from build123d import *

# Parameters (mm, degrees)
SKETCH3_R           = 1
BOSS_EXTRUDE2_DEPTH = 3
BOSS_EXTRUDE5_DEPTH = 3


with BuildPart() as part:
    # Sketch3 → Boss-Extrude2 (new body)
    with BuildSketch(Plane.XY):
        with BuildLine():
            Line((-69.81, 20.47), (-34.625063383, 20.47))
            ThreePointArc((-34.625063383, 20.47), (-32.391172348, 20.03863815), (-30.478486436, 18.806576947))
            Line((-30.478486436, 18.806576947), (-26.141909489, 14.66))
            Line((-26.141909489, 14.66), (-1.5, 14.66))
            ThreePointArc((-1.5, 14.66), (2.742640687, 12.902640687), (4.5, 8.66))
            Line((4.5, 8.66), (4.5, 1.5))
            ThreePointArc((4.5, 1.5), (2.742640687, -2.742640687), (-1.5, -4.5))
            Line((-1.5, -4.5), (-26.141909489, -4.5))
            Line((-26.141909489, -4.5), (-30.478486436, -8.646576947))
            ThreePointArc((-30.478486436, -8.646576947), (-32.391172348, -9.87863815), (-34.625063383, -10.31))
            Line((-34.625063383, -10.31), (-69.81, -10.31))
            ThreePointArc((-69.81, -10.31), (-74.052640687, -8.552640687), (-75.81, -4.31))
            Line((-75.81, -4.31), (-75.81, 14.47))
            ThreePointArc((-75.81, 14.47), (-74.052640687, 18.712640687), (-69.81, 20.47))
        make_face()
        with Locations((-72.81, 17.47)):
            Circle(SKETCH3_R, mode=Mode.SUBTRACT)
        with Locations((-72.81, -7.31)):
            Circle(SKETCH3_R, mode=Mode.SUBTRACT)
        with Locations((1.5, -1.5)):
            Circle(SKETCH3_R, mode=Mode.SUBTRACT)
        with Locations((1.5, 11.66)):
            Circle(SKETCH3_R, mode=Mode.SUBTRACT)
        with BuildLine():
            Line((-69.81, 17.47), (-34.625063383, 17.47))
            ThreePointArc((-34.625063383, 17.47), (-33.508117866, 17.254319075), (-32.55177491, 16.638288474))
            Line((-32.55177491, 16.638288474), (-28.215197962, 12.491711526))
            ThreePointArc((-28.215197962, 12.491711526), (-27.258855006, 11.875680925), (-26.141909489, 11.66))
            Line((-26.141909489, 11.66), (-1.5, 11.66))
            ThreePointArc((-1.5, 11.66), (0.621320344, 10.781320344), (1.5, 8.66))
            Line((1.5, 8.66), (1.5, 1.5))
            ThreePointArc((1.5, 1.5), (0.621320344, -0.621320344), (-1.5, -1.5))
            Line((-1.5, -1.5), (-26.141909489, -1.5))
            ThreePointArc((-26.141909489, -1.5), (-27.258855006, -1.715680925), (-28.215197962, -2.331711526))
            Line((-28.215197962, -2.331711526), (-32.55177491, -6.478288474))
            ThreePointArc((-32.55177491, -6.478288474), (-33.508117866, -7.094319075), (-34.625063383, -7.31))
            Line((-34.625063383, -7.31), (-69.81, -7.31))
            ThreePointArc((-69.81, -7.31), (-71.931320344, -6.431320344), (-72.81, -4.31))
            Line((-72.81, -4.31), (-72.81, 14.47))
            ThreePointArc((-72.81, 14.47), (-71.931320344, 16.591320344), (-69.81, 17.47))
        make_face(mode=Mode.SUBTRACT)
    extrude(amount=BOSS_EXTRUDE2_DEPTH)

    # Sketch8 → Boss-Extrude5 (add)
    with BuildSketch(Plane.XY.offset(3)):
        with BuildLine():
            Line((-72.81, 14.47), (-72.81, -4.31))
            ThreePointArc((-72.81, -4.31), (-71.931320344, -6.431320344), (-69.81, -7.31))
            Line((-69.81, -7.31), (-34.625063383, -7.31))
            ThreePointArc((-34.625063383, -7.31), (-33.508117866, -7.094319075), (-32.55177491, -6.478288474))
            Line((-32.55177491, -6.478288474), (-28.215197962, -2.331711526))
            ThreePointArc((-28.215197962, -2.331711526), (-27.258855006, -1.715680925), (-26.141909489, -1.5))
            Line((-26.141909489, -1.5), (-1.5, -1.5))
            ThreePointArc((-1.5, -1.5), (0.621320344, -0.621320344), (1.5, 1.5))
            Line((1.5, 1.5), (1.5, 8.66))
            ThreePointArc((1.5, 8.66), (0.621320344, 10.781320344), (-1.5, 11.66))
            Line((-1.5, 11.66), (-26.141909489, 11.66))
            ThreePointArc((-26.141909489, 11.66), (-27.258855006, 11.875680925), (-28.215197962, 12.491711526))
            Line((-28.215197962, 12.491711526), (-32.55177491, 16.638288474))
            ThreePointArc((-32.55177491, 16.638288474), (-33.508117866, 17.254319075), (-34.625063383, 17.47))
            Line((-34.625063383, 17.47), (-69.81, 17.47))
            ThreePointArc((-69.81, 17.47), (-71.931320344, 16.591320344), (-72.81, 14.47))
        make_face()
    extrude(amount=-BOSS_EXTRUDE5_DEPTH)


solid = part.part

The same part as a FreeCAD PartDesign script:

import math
import FreeCAD as App
import Part
import Sketcher

V = App.Vector
Q = App.Units.Quantity

doc = App.newDocument("Part")
body = doc.addObject("PartDesign::Body", "Body")

# Sketch on XY plane
sketch1 = doc.addObject("Sketcher::SketchObject", "Sketch")
body.addObject(sketch1)
sketch1.AttachmentSupport = (doc.XY_Plane, [""])
sketch1.MapMode = "FlatFace"
sketch1.addGeometry(Part.LineSegment(V(-34.6, 20.5, 0), V(-69.8, 20.5, 0)), False)
sketch1.addGeometry(Part.ArcOfCircle(Part.Circle(V(-69.8, 14.5, 0), V(0, 0, 1), 6), math.radians(90), math.radians(180)), False)
sketch1.addGeometry(Part.LineSegment(V(-75.8, 14.5, 0), V(-75.8, -4.3, 0)), False)
sketch1.addGeometry(Part.ArcOfCircle(Part.Circle(V(-69.8, -4.3, 0), V(0, 0, 1), 6), math.radians(180), math.radians(270)), False)
sketch1.addGeometry(Part.LineSegment(V(-69.8, -10.3, 0), V(-34.6, -10.3, 0)), False)
sketch1.addGeometry(Part.ArcOfCircle(Part.Circle(V(-34.6, -4.3, 0), V(0, 0, 1), 6), math.radians(-90), math.radians(-46)), False)
sketch1.addGeometry(Part.LineSegment(V(-30.5, -8.6, 0), V(-26.1, -4.5, 0)), False)
sketch1.addGeometry(Part.LineSegment(V(-26.1, -4.5, 0), V(-1.5, -4.5, 0)), False)
sketch1.addGeometry(Part.ArcOfCircle(Part.Circle(V(-1.5, 1.5, 0), V(0, 0, 1), 6), math.radians(-90), math.radians(0)), False)
sketch1.addGeometry(Part.LineSegment(V(4.5, 1.5, 0), V(4.5, 8.7, 0)), False)
sketch1.addGeometry(Part.ArcOfCircle(Part.Circle(V(-1.5, 8.7, 0), V(0, 0, 1), 6), math.radians(0), math.radians(90)), False)
sketch1.addGeometry(Part.LineSegment(V(-1.5, 14.7, 0), V(-26.1, 14.7, 0)), False)
sketch1.addGeometry(Part.LineSegment(V(-26.1, 14.7, 0), V(-30.5, 18.8, 0)), False)
sketch1.addGeometry(Part.ArcOfCircle(Part.Circle(V(-34.6, 14.5, 0), V(0, 0, 1), 6), math.radians(46), math.radians(90)), False)
sketch1.addGeometry(Part.Circle(V(1.5, -1.5, 0), V(0, 0, 1), 1), False)
sketch1.addGeometry(Part.Circle(V(-72.8, -7.3, 0), V(0, 0, 1), 1), False)
sketch1.addGeometry(Part.Circle(V(1.5, 11.7, 0), V(0, 0, 1), 1), False)
sketch1.addGeometry(Part.LineSegment(V(-69.8, 17.5, 0), V(-34.6, 17.5, 0)), False)
sketch1.addGeometry(Part.ArcOfCircle(Part.Circle(V(-34.6, 14.5, 0), V(0, 0, 1), 3), math.radians(46), math.radians(90)), False)
sketch1.addGeometry(Part.LineSegment(V(-32.6, 16.6, 0), V(-28.2, 12.5, 0)), False)
sketch1.addGeometry(Part.ArcOfCircle(Part.Circle(V(-26.1, 14.7, 0), V(0, 0, 1), 3), math.radians(-134), math.radians(-90)), False)
sketch1.addGeometry(Part.LineSegment(V(-26.1, 11.7, 0), V(-1.5, 11.7, 0)), False)
sketch1.addGeometry(Part.ArcOfCircle(Part.Circle(V(-1.5, 8.7, 0), V(0, 0, 1), 3), math.radians(0), math.radians(90)), False)
sketch1.addGeometry(Part.LineSegment(V(1.5, 8.7, 0), V(1.5, 1.5, 0)), False)
sketch1.addGeometry(Part.ArcOfCircle(Part.Circle(V(-1.5, 1.5, 0), V(0, 0, 1), 3), math.radians(-90), math.radians(0)), False)
sketch1.addGeometry(Part.LineSegment(V(-1.5, -1.5, 0), V(-26.1, -1.5, 0)), False)
sketch1.addGeometry(Part.ArcOfCircle(Part.Circle(V(-26.1, -4.5, 0), V(0, 0, 1), 3), math.radians(90), math.radians(134)), False)
sketch1.addGeometry(Part.LineSegment(V(-28.2, -2.3, 0), V(-32.6, -6.5, 0)), False)
sketch1.addGeometry(Part.ArcOfCircle(Part.Circle(V(-34.6, -4.3, 0), V(0, 0, 1), 3), math.radians(-90), math.radians(-46)), False)
sketch1.addGeometry(Part.LineSegment(V(-34.6, -7.3, 0), V(-69.8, -7.3, 0)), False)
sketch1.addGeometry(Part.ArcOfCircle(Part.Circle(V(-69.8, -4.3, 0), V(0, 0, 1), 3), math.radians(180), math.radians(270)), False)
sketch1.addGeometry(Part.LineSegment(V(-72.8, -4.3, 0), V(-72.8, 14.5, 0)), False)
sketch1.addGeometry(Part.ArcOfCircle(Part.Circle(V(-69.8, 14.5, 0), V(0, 0, 1), 3), math.radians(90), math.radians(180)), False)
sketch1.addGeometry(Part.Circle(V(-72.8, 17.5, 0), V(0, 0, 1), 1), False)
sketch1.addConstraint(Sketcher.Constraint("Tangent", 0, 2, 1, 1))
sketch1.addConstraint(Sketcher.Constraint("Tangent", 1, 2, 2, 1))
sketch1.addConstraint(Sketcher.Constraint("Tangent", 2, 2, 3, 1))
sketch1.addConstraint(Sketcher.Constraint("Tangent", 3, 2, 4, 1))
sketch1.addConstraint(Sketcher.Constraint("Tangent", 4, 2, 5, 1))
sketch1.addConstraint(Sketcher.Constraint("Tangent", 5, 2, 6, 1))
sketch1.addConstraint(Sketcher.Constraint("Coincident", 6, 2, 7, 1))
sketch1.addConstraint(Sketcher.Constraint("Tangent", 7, 2, 8, 1))
sketch1.addConstraint(Sketcher.Constraint("Tangent", 8, 2, 9, 1))
sketch1.addConstraint(Sketcher.Constraint("Tangent", 9, 2, 10, 1))
sketch1.addConstraint(Sketcher.Constraint("Tangent", 10, 2, 11, 1))
sketch1.addConstraint(Sketcher.Constraint("Coincident", 11, 2, 12, 1))
sketch1.addConstraint(Sketcher.Constraint("Tangent", 12, 2, 13, 1))
sketch1.addConstraint(Sketcher.Constraint("Tangent", 13, 2, 0, 1))
sketch1.addConstraint(Sketcher.Constraint("Tangent", 17, 2, 18, 2))
sketch1.addConstraint(Sketcher.Constraint("Tangent", 18, 1, 19, 1))
sketch1.addConstraint(Sketcher.Constraint("Tangent", 19, 2, 20, 1))
sketch1.addConstraint(Sketcher.Constraint("Tangent", 20, 2, 21, 1))
sketch1.addConstraint(Sketcher.Constraint("Tangent", 21, 2, 22, 2))
sketch1.addConstraint(Sketcher.Constraint("Tangent", 22, 1, 23, 1))
sketch1.addConstraint(Sketcher.Constraint("Tangent", 23, 2, 24, 2))
sketch1.addConstraint(Sketcher.Constraint("Tangent", 24, 1, 25, 1))
sketch1.addConstraint(Sketcher.Constraint("Tangent", 25, 2, 26, 1))
sketch1.addConstraint(Sketcher.Constraint("Tangent", 26, 2, 27, 1))
sketch1.addConstraint(Sketcher.Constraint("Tangent", 27, 2, 28, 2))
sketch1.addConstraint(Sketcher.Constraint("Tangent", 28, 1, 29, 1))
sketch1.addConstraint(Sketcher.Constraint("Tangent", 29, 2, 30, 2))
sketch1.addConstraint(Sketcher.Constraint("Tangent", 30, 1, 31, 1))
sketch1.addConstraint(Sketcher.Constraint("Tangent", 31, 2, 32, 2))
sketch1.addConstraint(Sketcher.Constraint("Tangent", 32, 1, 17, 1))
sketch1.addConstraint(Sketcher.Constraint("Horizontal", 0))
sketch1.addConstraint(Sketcher.Constraint("Vertical", 2))
sketch1.addConstraint(Sketcher.Constraint("Horizontal", 4))
sketch1.addConstraint(Sketcher.Constraint("Horizontal", 7))
sketch1.addConstraint(Sketcher.Constraint("Vertical", 9))
sketch1.addConstraint(Sketcher.Constraint("Horizontal", 11))
sketch1.addConstraint(Sketcher.Constraint("Horizontal", 17))
sketch1.addConstraint(Sketcher.Constraint("Horizontal", 21))
sketch1.addConstraint(Sketcher.Constraint("Vertical", 23))
sketch1.addConstraint(Sketcher.Constraint("Horizontal", 25))
sketch1.addConstraint(Sketcher.Constraint("Horizontal", 29))
sketch1.addConstraint(Sketcher.Constraint("Vertical", 31))
sketch1.addConstraint(Sketcher.Constraint("Coincident", 18, 3, 13, 3))
sketch1.addConstraint(Sketcher.Constraint("Coincident", 22, 3, 10, 3))
sketch1.addConstraint(Sketcher.Constraint("Coincident", 24, 3, 8, 3))
sketch1.addConstraint(Sketcher.Constraint("Coincident", 28, 3, 5, 3))
sketch1.addConstraint(Sketcher.Constraint("Coincident", 30, 3, 3, 3))
sketch1.addConstraint(Sketcher.Constraint("Coincident", 32, 3, 1, 3))
sketch1.addConstraint(Sketcher.Constraint("Coincident", 6, 2, 26, 3))
sketch1.addConstraint(Sketcher.Constraint("Coincident", 11, 2, 20, 3))
sketch1.addConstraint(Sketcher.Constraint("Equal", 1, 3))
sketch1.addConstraint(Sketcher.Constraint("Equal", 3, 5))
sketch1.addConstraint(Sketcher.Constraint("Equal", 5, 8))
sketch1.addConstraint(Sketcher.Constraint("Equal", 8, 10))
sketch1.addConstraint(Sketcher.Constraint("Equal", 10, 13))
sketch1.addConstraint(Sketcher.Constraint("Equal", 14, 15))
sketch1.addConstraint(Sketcher.Constraint("Equal", 15, 16))
sketch1.addConstraint(Sketcher.Constraint("Equal", 18, 20))
sketch1.addConstraint(Sketcher.Constraint("Equal", 20, 22))
sketch1.addConstraint(Sketcher.Constraint("Equal", 16, 33))
sketch1.addConstraint(Sketcher.Constraint("Symmetric", 8, 3, 14, 3, -1, 1))
sketch1.addConstraint(Sketcher.Constraint("Symmetric", 23, 2, 24, 1, -1, 1))
sketch1.addConstraint(Sketcher.Constraint("Horizontal", 33, 3, 17, 2))
sketch1.addConstraint(Sketcher.Constraint("Horizontal", 16, 3, 20, 2))
sketch1.addConstraint(Sketcher.Constraint("Horizontal", 15, 3, 28, 1))
sketch1.addConstraint(Sketcher.Constraint("Vertical", 5, 3, 13, 3))
sketch1.addConstraint(Sketcher.Constraint("Vertical", 14, 3, 16, 3))
sketch1.addConstraint(Sketcher.Constraint("Vertical", 20, 3, 26, 3))
sketch1.addConstraint(Sketcher.Constraint("Vertical", 15, 3, 33, 3))
sketch1.addConstraint(Sketcher.Constraint("Vertical", 5, 2, 12, 2))
sketch1.addConstraint(Sketcher.Constraint("Vertical", 33, 3, 30, 1))
sketch1.addConstraint(Sketcher.Constraint("Diameter", 14, Q("2 mm")))
sketch1.addConstraint(Sketcher.Constraint("Radius", 1, Q("6 mm")))
sketch1.addConstraint(Sketcher.Constraint("Distance", 6, Q("6 mm")))
sketch1.addConstraint(Sketcher.Constraint("DistanceY", 2, 2, 2, 1, Q("18.78 mm")))
sketch1.addConstraint(Sketcher.Constraint("DistanceY", 9, 1, 9, 2, Q("7.16 mm")))
sketch1.addConstraint(Sketcher.Constraint("DistanceX", 1, 3, -1, 1, Q("69.81 mm")))
sketch1.addConstraint(Sketcher.Constraint("DistanceX", 7, 1, 7, 2, Q("24.641909 mm")))
pad1 = doc.addObject("PartDesign::Pad", "Pad")
body.addObject(pad1)
pad1.Profile = sketch1
pad1.Length = 3

# Sketch on XY plane
sketch2 = doc.addObject("Sketcher::SketchObject", "Sketch001")
body.addObject(sketch2)
sketch2.AttachmentSupport = (doc.XY_Plane, [""])
sketch2.MapMode = "FlatFace"
sketch2.AttachmentOffset = App.Placement(V(0, 0, 3), App.Rotation())
sketch2.addGeometry(Part.LineSegment(V(-72.8, 14.5, 0), V(-72.8, -4.3, 0)), False)
sketch2.addGeometry(Part.ArcOfCircle(Part.Circle(V(-69.8, -4.3, 0), V(0, 0, 1), 3), math.radians(180), math.radians(270)), False)
sketch2.addGeometry(Part.LineSegment(V(-69.8, -7.3, 0), V(-34.6, -7.3, 0)), False)
sketch2.addGeometry(Part.ArcOfCircle(Part.Circle(V(-34.6, -4.3, 0), V(0, 0, 1), 3), math.radians(-90), math.radians(-46)), False)
sketch2.addGeometry(Part.LineSegment(V(-32.6, -6.5, 0), V(-28.2, -2.3, 0)), False)
sketch2.addGeometry(Part.ArcOfCircle(Part.Circle(V(-26.1, -4.5, 0), V(0, 0, 1), 3), math.radians(90), math.radians(134)), False)
sketch2.addGeometry(Part.LineSegment(V(-26.1, -1.5, 0), V(-1.5, -1.5, 0)), False)
sketch2.addGeometry(Part.ArcOfCircle(Part.Circle(V(-1.5, 1.5, 0), V(0, 0, 1), 3), math.radians(-90), math.radians(0)), False)
sketch2.addGeometry(Part.LineSegment(V(1.5, 1.5, 0), V(1.5, 8.7, 0)), False)
sketch2.addGeometry(Part.ArcOfCircle(Part.Circle(V(-1.5, 8.7, 0), V(0, 0, 1), 3), math.radians(0), math.radians(90)), False)
sketch2.addGeometry(Part.LineSegment(V(-1.5, 11.7, 0), V(-26.1, 11.7, 0)), False)
sketch2.addGeometry(Part.ArcOfCircle(Part.Circle(V(-26.1, 14.7, 0), V(0, 0, 1), 3), math.radians(-134), math.radians(-90)), False)
sketch2.addGeometry(Part.LineSegment(V(-28.2, 12.5, 0), V(-32.6, 16.6, 0)), False)
sketch2.addGeometry(Part.ArcOfCircle(Part.Circle(V(-34.6, 14.5, 0), V(0, 0, 1), 3), math.radians(46), math.radians(90)), False)
sketch2.addGeometry(Part.LineSegment(V(-34.6, 17.5, 0), V(-69.8, 17.5, 0)), False)
sketch2.addGeometry(Part.ArcOfCircle(Part.Circle(V(-69.8, 14.5, 0), V(0, 0, 1), 3), math.radians(90), math.radians(180)), False)
sketch2.addConstraint(Sketcher.Constraint("Tangent", 0, 2, 1, 1))
sketch2.addConstraint(Sketcher.Constraint("Tangent", 1, 2, 2, 1))
sketch2.addConstraint(Sketcher.Constraint("Tangent", 2, 2, 3, 1))
sketch2.addConstraint(Sketcher.Constraint("Tangent", 3, 2, 4, 1))
sketch2.addConstraint(Sketcher.Constraint("Tangent", 4, 2, 5, 2))
sketch2.addConstraint(Sketcher.Constraint("Tangent", 5, 1, 6, 1))
sketch2.addConstraint(Sketcher.Constraint("Tangent", 6, 2, 7, 1))
sketch2.addConstraint(Sketcher.Constraint("Tangent", 7, 2, 8, 1))
sketch2.addConstraint(Sketcher.Constraint("Tangent", 8, 2, 9, 1))
sketch2.addConstraint(Sketcher.Constraint("Tangent", 9, 2, 10, 1))
sketch2.addConstraint(Sketcher.Constraint("Tangent", 10, 2, 11, 2))
sketch2.addConstraint(Sketcher.Constraint("Tangent", 11, 1, 12, 1))
sketch2.addConstraint(Sketcher.Constraint("Tangent", 12, 2, 13, 1))
sketch2.addConstraint(Sketcher.Constraint("Tangent", 13, 2, 14, 1))
sketch2.addConstraint(Sketcher.Constraint("Tangent", 14, 2, 15, 1))
sketch2.addConstraint(Sketcher.Constraint("Tangent", 15, 2, 0, 1))
sketch2.addConstraint(Sketcher.Constraint("Vertical", 0))
sketch2.addConstraint(Sketcher.Constraint("Horizontal", 2))
sketch2.addConstraint(Sketcher.Constraint("Horizontal", 6))
sketch2.addConstraint(Sketcher.Constraint("Vertical", 8))
sketch2.addConstraint(Sketcher.Constraint("Horizontal", 10))
sketch2.addConstraint(Sketcher.Constraint("Horizontal", 14))
sketch2.addConstraint(Sketcher.Constraint("Equal", 1, 3))
sketch2.addConstraint(Sketcher.Constraint("Equal", 3, 5))
sketch2.addConstraint(Sketcher.Constraint("Equal", 5, 7))
sketch2.addConstraint(Sketcher.Constraint("Equal", 7, 9))
sketch2.addConstraint(Sketcher.Constraint("Equal", 9, 11))
sketch2.addConstraint(Sketcher.Constraint("Equal", 11, 13))
sketch2.addConstraint(Sketcher.Constraint("Equal", 13, 15))
sketch2.addConstraint(Sketcher.Constraint("Symmetric", 6, 2, 7, 2, -1, 1))
sketch2.addConstraint(Sketcher.Constraint("Vertical", 5, 3, 11, 3))
sketch2.addConstraint(Sketcher.Constraint("Vertical", 3, 3, 13, 3))
sketch2.addConstraint(Sketcher.Constraint("Vertical", 4, 2, 11, 1))
sketch2.addConstraint(Sketcher.Constraint("Radius", 1, Q("3 mm")))
sketch2.addConstraint(Sketcher.Constraint("Distance", 4, Q("6 mm")))
sketch2.addConstraint(Sketcher.Constraint("DistanceY", 0, 2, 0, 1, Q("18.78 mm")))
sketch2.addConstraint(Sketcher.Constraint("DistanceY", 8, 1, 8, 2, Q("7.16 mm")))
sketch2.addConstraint(Sketcher.Constraint("DistanceX", 1, 3, -1, 1, Q("69.81 mm")))
sketch2.addConstraint(Sketcher.Constraint("DistanceX", 6, 1, 6, 2, Q("24.641909 mm")))
pad2 = doc.addObject("PartDesign::Pad", "Pad001")
body.addObject(pad2)
pad2.Profile = sketch2
pad2.Length = 3
pad2.Reversed = True

doc.recompute()
